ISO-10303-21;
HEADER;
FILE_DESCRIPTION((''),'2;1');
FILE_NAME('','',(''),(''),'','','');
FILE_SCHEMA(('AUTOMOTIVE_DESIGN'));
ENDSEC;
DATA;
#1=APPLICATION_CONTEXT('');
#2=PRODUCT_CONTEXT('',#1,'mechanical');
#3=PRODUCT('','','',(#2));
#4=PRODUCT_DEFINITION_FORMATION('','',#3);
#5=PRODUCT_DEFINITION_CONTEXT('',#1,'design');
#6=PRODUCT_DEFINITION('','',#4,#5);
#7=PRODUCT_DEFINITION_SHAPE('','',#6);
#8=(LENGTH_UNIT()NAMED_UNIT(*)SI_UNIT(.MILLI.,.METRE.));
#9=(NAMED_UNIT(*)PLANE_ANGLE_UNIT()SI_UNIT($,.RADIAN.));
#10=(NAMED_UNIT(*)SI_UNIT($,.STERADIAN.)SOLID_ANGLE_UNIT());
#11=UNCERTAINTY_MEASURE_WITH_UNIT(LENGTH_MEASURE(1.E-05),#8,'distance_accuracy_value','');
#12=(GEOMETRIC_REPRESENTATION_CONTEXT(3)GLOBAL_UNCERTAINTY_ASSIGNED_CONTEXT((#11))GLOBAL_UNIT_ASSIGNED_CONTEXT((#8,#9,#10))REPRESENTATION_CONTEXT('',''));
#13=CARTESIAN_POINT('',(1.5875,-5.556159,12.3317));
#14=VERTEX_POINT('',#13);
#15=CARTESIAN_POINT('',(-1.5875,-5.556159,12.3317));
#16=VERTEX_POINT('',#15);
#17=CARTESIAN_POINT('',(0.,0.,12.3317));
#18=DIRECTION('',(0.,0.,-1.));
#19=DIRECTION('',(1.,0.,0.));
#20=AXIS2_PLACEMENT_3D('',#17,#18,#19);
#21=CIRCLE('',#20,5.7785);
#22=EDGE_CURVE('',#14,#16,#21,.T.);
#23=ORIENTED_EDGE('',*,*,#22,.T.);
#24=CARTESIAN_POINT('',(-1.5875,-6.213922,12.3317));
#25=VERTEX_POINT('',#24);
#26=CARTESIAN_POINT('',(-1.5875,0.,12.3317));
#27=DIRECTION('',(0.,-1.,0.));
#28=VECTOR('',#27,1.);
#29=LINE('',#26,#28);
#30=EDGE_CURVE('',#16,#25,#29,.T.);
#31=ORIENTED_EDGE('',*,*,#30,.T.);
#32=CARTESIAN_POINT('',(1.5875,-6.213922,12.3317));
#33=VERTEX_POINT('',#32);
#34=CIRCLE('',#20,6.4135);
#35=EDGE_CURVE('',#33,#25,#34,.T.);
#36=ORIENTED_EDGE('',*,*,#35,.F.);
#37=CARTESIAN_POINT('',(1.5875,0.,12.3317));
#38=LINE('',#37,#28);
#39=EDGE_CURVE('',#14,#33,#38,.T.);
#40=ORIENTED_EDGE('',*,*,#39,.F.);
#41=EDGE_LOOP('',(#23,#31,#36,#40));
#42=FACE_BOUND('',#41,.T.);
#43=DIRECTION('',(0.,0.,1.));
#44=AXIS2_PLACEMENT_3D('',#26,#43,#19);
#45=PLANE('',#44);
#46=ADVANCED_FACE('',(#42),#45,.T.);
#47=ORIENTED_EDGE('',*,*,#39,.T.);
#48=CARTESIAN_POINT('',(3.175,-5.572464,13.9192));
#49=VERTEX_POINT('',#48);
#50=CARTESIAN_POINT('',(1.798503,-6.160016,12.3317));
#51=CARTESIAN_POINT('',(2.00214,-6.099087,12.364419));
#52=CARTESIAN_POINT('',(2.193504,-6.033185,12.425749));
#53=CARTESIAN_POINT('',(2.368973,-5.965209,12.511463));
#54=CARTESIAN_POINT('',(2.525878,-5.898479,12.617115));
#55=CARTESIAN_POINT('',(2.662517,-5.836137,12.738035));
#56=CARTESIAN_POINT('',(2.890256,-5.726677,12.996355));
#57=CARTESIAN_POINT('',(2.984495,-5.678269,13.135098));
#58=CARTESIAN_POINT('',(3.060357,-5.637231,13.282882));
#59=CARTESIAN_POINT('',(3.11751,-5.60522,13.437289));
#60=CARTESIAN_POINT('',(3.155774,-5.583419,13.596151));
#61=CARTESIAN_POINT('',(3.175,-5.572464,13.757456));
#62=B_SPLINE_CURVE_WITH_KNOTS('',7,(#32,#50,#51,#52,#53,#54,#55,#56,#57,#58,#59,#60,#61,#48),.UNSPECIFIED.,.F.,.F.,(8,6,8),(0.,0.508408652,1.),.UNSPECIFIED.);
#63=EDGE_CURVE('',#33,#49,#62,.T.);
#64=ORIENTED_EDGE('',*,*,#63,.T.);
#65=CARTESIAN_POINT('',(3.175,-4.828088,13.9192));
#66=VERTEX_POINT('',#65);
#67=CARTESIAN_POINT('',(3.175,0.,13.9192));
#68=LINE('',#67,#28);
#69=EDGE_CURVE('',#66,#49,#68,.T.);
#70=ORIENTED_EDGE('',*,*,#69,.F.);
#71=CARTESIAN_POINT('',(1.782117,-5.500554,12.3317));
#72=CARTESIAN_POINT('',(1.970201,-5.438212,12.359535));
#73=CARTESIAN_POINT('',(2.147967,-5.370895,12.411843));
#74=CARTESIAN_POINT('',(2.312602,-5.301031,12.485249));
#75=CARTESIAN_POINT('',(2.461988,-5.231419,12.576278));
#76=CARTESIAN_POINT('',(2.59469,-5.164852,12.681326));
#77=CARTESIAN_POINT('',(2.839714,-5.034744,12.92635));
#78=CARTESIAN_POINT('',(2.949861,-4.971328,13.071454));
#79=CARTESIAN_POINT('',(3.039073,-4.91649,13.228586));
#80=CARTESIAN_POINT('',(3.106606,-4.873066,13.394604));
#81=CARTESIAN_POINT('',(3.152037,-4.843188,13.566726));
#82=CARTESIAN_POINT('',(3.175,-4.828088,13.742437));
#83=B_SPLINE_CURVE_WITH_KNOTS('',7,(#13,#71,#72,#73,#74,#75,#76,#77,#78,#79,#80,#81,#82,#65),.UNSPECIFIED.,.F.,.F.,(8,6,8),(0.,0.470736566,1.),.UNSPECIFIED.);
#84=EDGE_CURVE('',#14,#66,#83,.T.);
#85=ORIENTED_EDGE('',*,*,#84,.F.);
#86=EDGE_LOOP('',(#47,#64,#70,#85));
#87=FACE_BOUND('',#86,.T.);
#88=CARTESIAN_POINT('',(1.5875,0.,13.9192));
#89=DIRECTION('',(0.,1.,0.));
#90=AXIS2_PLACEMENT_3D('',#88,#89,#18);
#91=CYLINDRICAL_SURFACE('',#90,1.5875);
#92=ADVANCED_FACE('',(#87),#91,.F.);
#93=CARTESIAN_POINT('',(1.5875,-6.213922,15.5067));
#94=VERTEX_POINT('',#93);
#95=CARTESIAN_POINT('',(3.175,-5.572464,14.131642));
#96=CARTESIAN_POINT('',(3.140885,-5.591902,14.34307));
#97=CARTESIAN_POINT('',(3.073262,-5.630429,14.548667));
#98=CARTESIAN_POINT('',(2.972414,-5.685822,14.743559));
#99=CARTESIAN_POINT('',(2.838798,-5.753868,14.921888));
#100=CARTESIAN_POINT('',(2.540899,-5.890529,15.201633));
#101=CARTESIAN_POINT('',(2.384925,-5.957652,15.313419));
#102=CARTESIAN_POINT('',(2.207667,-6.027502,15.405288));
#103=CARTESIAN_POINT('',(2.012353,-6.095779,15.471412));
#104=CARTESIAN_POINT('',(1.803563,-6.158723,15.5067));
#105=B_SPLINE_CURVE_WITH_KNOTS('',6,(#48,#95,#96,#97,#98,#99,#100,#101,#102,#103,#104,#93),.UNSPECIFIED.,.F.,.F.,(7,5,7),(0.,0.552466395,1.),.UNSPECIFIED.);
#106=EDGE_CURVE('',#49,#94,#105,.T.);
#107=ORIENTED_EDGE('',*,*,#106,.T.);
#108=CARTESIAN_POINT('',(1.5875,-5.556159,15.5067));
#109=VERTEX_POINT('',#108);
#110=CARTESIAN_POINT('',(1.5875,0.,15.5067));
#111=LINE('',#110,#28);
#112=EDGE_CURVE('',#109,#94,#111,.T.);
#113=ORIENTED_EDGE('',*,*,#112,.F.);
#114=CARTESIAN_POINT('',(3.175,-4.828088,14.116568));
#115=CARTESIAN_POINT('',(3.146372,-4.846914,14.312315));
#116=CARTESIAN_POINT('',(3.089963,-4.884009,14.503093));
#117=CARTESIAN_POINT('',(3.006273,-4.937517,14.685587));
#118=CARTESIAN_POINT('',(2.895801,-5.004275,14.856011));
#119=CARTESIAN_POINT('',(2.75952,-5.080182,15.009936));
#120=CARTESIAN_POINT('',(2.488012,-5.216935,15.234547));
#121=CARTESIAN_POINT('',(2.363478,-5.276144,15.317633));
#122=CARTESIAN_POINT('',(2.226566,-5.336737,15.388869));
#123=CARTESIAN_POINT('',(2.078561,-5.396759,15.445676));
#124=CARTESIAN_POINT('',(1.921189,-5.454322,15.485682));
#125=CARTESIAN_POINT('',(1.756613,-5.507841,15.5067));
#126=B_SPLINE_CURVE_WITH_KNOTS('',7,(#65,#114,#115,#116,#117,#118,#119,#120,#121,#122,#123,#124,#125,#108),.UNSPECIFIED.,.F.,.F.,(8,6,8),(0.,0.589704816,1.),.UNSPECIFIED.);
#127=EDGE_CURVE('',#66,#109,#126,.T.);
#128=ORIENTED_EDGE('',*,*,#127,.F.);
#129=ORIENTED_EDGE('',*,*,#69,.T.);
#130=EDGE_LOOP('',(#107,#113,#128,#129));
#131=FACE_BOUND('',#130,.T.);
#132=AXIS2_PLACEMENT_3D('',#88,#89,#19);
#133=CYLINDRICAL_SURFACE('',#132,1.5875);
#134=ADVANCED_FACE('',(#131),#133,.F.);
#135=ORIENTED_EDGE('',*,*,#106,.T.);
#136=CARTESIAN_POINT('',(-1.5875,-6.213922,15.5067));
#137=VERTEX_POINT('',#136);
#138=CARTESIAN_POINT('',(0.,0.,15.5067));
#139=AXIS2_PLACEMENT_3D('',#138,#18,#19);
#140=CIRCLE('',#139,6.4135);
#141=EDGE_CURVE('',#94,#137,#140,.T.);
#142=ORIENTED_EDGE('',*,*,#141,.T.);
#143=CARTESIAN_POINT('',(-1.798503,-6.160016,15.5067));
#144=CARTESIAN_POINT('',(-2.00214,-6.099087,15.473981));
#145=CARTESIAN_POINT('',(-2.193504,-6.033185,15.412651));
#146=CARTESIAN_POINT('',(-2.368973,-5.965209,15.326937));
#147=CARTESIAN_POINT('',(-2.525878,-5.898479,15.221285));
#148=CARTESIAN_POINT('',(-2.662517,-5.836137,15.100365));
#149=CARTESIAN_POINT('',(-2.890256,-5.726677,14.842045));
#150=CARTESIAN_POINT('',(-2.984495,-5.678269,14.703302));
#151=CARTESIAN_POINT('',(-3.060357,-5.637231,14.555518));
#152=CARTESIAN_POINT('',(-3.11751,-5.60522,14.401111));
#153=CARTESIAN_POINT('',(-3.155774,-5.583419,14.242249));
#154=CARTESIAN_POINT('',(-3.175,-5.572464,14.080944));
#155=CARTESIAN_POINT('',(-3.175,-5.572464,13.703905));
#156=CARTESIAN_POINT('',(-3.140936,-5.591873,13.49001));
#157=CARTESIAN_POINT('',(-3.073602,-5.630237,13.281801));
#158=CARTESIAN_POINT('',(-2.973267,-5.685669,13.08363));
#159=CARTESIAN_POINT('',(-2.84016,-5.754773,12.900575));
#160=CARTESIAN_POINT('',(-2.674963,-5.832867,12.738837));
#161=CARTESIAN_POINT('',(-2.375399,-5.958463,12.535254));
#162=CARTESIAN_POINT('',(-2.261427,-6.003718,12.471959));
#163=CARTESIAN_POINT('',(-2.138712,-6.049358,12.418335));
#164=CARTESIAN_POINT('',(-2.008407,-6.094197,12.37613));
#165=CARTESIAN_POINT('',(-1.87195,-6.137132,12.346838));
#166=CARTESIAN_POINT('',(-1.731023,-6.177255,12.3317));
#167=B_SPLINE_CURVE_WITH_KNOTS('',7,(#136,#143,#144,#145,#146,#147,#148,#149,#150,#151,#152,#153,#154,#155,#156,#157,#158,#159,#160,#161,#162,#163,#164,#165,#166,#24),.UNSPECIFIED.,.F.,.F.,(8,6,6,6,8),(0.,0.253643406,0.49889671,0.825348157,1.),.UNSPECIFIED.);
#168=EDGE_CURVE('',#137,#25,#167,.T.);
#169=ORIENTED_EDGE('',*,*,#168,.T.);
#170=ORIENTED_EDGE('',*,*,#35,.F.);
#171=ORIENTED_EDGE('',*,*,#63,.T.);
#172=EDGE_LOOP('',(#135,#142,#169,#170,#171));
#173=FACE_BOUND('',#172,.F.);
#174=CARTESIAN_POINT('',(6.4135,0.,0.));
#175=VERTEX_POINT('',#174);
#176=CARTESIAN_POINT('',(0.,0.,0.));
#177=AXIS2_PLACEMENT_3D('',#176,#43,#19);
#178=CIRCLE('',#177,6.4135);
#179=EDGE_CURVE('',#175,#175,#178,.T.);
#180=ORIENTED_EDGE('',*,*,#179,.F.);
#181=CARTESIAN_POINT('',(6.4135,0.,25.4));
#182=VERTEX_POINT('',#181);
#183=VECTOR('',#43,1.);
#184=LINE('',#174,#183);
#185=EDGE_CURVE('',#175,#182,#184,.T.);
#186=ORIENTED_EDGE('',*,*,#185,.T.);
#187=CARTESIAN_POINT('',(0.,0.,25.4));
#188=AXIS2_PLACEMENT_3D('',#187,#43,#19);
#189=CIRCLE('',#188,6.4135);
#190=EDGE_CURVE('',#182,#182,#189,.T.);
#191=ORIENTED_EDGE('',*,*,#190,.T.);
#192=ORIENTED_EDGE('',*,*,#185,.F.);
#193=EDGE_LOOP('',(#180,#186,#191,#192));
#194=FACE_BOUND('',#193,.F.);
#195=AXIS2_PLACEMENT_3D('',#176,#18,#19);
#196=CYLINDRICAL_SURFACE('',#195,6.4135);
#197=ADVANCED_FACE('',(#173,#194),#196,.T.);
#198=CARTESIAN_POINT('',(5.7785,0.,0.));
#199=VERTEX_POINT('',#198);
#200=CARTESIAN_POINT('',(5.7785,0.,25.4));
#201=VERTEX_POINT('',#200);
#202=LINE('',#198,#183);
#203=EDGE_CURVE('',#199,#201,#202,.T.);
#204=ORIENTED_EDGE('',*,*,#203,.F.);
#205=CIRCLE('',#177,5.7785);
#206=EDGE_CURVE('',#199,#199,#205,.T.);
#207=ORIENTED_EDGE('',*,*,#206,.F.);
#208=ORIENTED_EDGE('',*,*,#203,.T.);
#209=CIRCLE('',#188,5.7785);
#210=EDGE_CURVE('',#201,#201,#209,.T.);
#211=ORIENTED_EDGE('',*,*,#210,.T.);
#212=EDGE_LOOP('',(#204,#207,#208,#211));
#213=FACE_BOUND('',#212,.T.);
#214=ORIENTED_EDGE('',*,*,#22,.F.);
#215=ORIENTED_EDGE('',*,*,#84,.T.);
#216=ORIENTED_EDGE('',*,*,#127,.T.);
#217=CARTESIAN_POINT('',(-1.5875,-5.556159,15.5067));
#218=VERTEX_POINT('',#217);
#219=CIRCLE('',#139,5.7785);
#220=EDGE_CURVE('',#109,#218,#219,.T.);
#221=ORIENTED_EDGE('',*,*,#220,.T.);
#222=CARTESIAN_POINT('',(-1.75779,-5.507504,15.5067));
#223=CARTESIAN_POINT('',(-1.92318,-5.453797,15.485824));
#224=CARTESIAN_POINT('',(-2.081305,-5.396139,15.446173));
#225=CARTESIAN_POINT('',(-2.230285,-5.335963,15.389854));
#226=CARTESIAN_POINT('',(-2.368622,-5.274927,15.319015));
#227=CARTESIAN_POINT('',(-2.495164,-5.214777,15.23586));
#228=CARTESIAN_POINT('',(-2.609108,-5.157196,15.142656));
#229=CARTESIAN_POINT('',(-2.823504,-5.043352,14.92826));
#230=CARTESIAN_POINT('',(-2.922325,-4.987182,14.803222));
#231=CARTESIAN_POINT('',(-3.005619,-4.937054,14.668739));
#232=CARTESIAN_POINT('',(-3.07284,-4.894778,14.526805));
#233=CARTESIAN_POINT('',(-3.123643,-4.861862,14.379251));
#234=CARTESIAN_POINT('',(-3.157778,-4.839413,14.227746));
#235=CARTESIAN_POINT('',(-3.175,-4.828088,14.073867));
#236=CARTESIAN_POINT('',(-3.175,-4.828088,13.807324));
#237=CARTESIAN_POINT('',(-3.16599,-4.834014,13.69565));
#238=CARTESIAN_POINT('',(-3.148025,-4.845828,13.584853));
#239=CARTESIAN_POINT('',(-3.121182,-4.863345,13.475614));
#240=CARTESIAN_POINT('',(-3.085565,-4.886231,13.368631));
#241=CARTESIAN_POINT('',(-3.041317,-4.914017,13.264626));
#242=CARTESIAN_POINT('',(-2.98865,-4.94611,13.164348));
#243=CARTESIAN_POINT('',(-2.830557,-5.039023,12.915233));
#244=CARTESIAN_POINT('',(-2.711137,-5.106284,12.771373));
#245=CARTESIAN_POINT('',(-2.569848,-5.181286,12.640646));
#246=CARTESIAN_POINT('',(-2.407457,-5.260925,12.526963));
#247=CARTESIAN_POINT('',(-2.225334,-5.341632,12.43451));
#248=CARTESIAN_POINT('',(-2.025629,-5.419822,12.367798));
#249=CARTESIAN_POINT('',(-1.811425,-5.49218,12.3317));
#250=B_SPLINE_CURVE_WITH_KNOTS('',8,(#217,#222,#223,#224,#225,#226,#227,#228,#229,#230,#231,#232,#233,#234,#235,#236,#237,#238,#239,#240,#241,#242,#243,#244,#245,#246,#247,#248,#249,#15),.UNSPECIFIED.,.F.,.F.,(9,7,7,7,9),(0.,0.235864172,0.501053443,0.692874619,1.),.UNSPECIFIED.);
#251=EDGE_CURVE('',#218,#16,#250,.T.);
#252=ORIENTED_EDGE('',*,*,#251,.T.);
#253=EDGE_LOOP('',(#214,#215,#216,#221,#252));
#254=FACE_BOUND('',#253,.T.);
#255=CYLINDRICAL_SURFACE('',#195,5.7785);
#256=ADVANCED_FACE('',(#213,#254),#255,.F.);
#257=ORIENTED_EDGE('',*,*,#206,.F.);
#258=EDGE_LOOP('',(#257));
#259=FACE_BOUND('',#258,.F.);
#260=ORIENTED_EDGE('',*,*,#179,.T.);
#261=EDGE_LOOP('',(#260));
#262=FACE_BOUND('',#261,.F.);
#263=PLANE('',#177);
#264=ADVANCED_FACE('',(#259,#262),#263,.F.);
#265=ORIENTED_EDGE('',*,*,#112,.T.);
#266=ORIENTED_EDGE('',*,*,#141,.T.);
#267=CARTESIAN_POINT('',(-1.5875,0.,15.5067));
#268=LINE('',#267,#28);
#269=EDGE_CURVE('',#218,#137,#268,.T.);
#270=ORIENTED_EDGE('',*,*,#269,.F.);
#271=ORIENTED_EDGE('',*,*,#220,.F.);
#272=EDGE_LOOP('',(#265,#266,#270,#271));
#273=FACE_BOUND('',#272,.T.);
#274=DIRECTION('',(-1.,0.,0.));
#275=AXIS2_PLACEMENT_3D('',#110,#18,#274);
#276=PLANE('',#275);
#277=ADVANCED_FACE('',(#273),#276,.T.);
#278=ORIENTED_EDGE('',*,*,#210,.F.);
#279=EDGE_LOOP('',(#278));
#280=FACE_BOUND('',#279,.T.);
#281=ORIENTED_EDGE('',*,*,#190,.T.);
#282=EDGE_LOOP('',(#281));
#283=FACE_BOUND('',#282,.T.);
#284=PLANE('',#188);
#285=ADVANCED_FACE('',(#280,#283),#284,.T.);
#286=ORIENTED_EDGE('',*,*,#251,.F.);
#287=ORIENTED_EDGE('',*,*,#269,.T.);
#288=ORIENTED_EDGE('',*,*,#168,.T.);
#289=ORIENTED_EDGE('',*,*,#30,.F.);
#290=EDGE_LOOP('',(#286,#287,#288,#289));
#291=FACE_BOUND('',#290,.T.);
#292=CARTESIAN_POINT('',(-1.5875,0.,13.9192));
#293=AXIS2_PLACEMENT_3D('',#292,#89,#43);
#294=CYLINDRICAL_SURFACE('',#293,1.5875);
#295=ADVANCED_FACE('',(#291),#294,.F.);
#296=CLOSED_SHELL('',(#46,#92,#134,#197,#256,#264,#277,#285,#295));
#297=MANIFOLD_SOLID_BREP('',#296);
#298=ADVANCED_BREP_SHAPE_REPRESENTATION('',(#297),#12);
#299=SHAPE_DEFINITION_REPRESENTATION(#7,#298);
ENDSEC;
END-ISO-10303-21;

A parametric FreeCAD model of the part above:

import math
import FreeCAD as App
import Part
import Sketcher
from FreeCAD import Vector
Q = App.Units.Quantity

doc = App.newDocument("Part")
params = doc.addObject("Spreadsheet::Sheet", "Params")
for row, (alias, value) in enumerate([
    ("sketch1_diameter", "0.505 in"),
    ("sketch1_diameter2", "0.455 in"),
    ("pad1_length", "1 in"),
    ("sketch2_radius", "0.0625 in"),
    ("sketch2_width", "0.125 in"),
    ("pocket1_length", "1 in"),
], start=1):
    params.set(f"A{row}", alias)
    params.set(f"B{row}", "=" + value)
    params.setAlias(f"B{row}", alias)

body = doc.addObject("PartDesign::Body", "Body")

sketch1 = body.newObject("Sketcher::SketchObject", "Sketch")
sketch1.AttachmentSupport = (doc.getObject("XY_Plane"), [""])
sketch1.MapMode = "FlatFace"
sketch1.addGeometry([
    Part.Circle(Vector(0, 0, 0), Vector(0, 0, 1), 6),
    Part.Circle(Vector(0, 0, 0), Vector(0, 0, 1), 6),
], False)
sketch1.addConstraint([
    Sketcher.Constraint("Coincident", 0, 3, -1, 1),
    Sketcher.Constraint("Coincident", 1, 3, -1, 1),
    Sketcher.Constraint("Diameter", 0, Q("0.505 in")),
    Sketcher.Constraint("Diameter", 1, Q("0.455 in")),
])
sketch1.setExpression("Constraints[2]", "Params.sketch1_diameter")
sketch1.setExpression("Constraints[3]", "Params.sketch1_diameter2")
pad1 = body.newObject("PartDesign::Pad", "Pad")
pad1.Profile = sketch1
pad1.setExpression("Length", "Params.pad1_length")

sketch2 = body.newObject("Sketcher::SketchObject", "Sketch001")
sketch2.AttachmentSupport = (doc.getObject("XZ_Plane"), [""])
sketch2.MapMode = "FlatFace"
sketch2.addGeometry([
    Part.LineSegment(Vector(-1.6, 12.3, 0), Vector(1.6, 12.3, 0)),
    Part.ArcOfCircle(Part.Circle(Vector(1.6, 13.9, 0), Vector(0, 0, 1), 1.6), math.radians(-90), math.radians(0)),
    Part.ArcOfCircle(Part.Circle(Vector(1.6, 13.9, 0), Vector(0, 0, 1), 1.6), math.radians(0), math.radians(90)),
    Part.LineSegment(Vector(1.6, 15.5, 0), Vector(-1.6, 15.5, 0)),
    Part.ArcOfCircle(Part.Circle(Vector(-1.6, 13.9, 0), Vector(0, 0, 1), 1.6), math.radians(90), math.radians(270)),
], False)
sketch2.addConstraint([
    Sketcher.Constraint("Tangent", 0, 2, 1, 1),
    Sketcher.Constraint("Tangent", 1, 2, 2, 1),
    Sketcher.Constraint("Tangent", 2, 2, 3, 1),
    Sketcher.Constraint("Tangent", 3, 2, 4, 1),
    Sketcher.Constraint("Tangent", 4, 2, 0, 1),
    Sketcher.Constraint("Horizontal", 0),
    Sketcher.Constraint("Horizontal", 3),
    Sketcher.Constraint("Equal", 1, 2),
    Sketcher.Constraint("Horizontal", 4, 3, 1, 2),
    Sketcher.Constraint("Radius", 1, Q("0.0625 in")),
    Sketcher.Constraint("DistanceX", 0, 1, 0, 2, Q("0.125 in")),
    Sketcher.Constraint("DistanceX", -1, 1, 1, 3, Q("0.0625 in")),
    Sketcher.Constraint("DistanceY", -1, 1, 1, 3, Q("0.548 in")),
])
sketch2.setExpression("Constraints[9]", "Params.sketch2_radius")
sketch2.setExpression("Constraints[10]", "Params.sketch2_width")
pocket1 = body.newObject("PartDesign::Pocket", "Pocket")
pocket1.Profile = sketch2
pocket1.setExpression("Length", "Params.pocket1_length")
pocket1.Reversed = True

doc.recompute()
